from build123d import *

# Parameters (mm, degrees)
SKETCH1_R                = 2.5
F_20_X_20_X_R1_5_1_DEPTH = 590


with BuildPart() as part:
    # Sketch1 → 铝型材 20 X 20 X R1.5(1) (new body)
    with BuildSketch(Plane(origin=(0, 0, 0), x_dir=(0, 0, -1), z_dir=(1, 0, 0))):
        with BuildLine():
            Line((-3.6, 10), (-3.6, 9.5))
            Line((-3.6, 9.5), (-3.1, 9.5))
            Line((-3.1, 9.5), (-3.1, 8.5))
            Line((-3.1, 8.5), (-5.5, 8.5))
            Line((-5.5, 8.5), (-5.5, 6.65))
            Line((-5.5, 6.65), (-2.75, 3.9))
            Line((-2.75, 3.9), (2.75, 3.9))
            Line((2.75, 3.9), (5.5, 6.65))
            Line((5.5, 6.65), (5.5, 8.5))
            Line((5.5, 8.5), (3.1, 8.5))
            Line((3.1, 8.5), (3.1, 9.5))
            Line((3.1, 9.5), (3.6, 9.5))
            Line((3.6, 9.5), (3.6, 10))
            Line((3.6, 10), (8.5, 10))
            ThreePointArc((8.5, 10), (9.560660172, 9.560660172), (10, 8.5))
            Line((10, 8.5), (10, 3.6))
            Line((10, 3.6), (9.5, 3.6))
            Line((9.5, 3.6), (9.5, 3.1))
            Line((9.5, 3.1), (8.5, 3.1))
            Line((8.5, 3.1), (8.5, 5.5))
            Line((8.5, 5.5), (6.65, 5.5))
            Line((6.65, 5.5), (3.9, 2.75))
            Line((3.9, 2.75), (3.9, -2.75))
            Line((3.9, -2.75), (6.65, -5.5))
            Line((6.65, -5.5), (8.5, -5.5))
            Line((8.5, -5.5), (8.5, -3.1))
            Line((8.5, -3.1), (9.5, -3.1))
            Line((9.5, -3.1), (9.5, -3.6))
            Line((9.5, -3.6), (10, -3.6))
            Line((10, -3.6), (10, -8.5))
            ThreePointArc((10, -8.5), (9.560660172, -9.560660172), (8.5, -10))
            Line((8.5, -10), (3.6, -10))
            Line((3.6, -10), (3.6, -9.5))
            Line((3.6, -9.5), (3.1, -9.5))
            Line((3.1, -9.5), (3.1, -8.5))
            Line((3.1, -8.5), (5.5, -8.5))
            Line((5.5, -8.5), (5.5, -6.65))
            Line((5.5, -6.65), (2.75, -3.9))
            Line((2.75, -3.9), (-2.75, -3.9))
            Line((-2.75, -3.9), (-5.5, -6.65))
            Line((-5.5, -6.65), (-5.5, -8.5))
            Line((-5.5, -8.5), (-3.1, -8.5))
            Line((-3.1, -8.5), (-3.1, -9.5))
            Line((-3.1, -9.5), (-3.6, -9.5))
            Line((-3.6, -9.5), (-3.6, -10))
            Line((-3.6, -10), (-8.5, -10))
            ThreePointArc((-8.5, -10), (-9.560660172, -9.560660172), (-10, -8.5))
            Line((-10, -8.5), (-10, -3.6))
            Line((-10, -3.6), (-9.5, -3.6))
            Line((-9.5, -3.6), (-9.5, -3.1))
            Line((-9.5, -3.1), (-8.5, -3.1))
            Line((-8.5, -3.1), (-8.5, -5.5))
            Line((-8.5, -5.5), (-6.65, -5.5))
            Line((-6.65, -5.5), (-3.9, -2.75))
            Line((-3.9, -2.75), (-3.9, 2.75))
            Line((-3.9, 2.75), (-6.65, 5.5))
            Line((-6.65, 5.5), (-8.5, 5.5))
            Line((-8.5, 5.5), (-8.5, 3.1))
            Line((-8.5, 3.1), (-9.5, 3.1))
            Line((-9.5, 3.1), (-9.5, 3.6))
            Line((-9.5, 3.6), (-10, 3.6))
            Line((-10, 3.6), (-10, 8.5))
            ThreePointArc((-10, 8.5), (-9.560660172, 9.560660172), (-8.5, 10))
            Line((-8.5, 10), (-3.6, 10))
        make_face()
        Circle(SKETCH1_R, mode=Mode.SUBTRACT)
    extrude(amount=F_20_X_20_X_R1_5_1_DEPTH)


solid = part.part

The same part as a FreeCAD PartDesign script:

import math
import FreeCAD as App
import Part
import Sketcher

V = App.Vector
Q = App.Units.Quantity

doc = App.newDocument("Part")
params = doc.addObject("Spreadsheet::Sheet", "Params")
for row, (alias, value) in enumerate([
    ("sketch1_diameter", "5 mm"),
    ("sketch1_radius", "1.5 mm"),
    ("sketch1_width", "1 mm"),
    ("sketch1_width2", "4.9 mm"),
    ("sketch1_width3", "2.4 mm"),
    ("pad1_length", "590 mm"),
], start=1):
    params.set(f"A{row}", alias)
    params.set(f"B{row}", "=" + value)
    params.setAlias(f"B{row}", alias)

body = doc.addObject("PartDesign::Body", "Body")

# Sketch on YZ plane
sketch1 = body.newObject("Sketcher::SketchObject", "Sketch")
sketch1.AttachmentSupport = (doc.getObject("YZ_Plane"), [""])
sketch1.MapMode = "FlatFace"
sketch1.addGeometry(Part.LineSegment(V(9.5, 3.6, 0), V(10, 3.6, 0)), False)
sketch1.addGeometry(Part.LineSegment(V(10, 3.6, 0), V(10, 8.5, 0)), False)
sketch1.addGeometry(Part.ArcOfCircle(Part.Circle(V(8.5, 8.5, 0), V(0, 0, 1), 1.5), math.radians(0), math.radians(90)), False)
sketch1.addGeometry(Part.LineSegment(V(8.5, 10, 0), V(3.6, 10, 0)), False)
sketch1.addGeometry(Part.LineSegment(V(3.6, 10, 0), V(3.6, 9.5, 0)), False)
sketch1.addGeometry(Part.LineSegment(V(3.6, 9.5, 0), V(3.1, 9.5, 0)), False)
sketch1.addGeometry(Part.LineSegment(V(3.1, 9.5, 0), V(3.1, 8.5, 0)), False)
sketch1.addGeometry(Part.LineSegment(V(3.1, 8.5, 0), V(5.5, 8.5, 0)), False)
sketch1.addGeometry(Part.LineSegment(V(5.5, 8.5, 0), V(5.5, 6.7, 0)), False)
sketch1.addGeometry(Part.LineSegment(V(5.5, 6.7, 0), V(2.8, 3.9, 0)), False)
sketch1.addGeometry(Part.LineSegment(V(2.8, 3.9, 0), V(-2.8, 3.9, 0)), False)
sketch1.addGeometry(Part.LineSegment(V(-2.8, 3.9, 0), V(-5.5, 6.7, 0)), False)
sketch1.addGeometry(Part.LineSegment(V(-5.5, 6.7, 0), V(-5.5, 8.5, 0)), False)
sketch1.addGeometry(Part.LineSegment(V(-5.5, 8.5, 0), V(-3.1, 8.5, 0)), False)
sketch1.addGeometry(Part.LineSegment(V(-3.1, 8.5, 0), V(-3.1, 9.5, 0)), False)
sketch1.addGeometry(Part.LineSegment(V(-3.1, 9.5, 0), V(-3.6, 9.5, 0)), False)
sketch1.addGeometry(Part.LineSegment(V(-3.6, 9.5, 0), V(-3.6, 10, 0)), False)
sketch1.addGeometry(Part.LineSegment(V(-3.6, 10, 0), V(-8.5, 10, 0)), False)
sketch1.addGeometry(Part.ArcOfCircle(Part.Circle(V(-8.5, 8.5, 0), V(0, 0, 1), 1.5), math.radians(90), math.radians(180)), False)
sketch1.addGeometry(Part.LineSegment(V(-10, 8.5, 0), V(-10, 3.6, 0)), False)
sketch1.addGeometry(Part.LineSegment(V(-10, 3.6, 0), V(-9.5, 3.6, 0)), False)
sketch1.addGeometry(Part.LineSegment(V(-9.5, 3.6, 0), V(-9.5, 3.1, 0)), False)
sketch1.addGeometry(Part.LineSegment(V(-9.5, 3.1, 0), V(-8.5, 3.1, 0)), False)
sketch1.addGeometry(Part.LineSegment(V(-8.5, 3.1, 0), V(-8.5, 5.5, 0)), False)
sketch1.addGeometry(Part.LineSegment(V(-8.5, 5.5, 0), V(-6.7, 5.5, 0)), False)
sketch1.addGeometry(Part.LineSegment(V(-6.7, 5.5, 0), V(-3.9, 2.8, 0)), False)
sketch1.addGeometry(Part.LineSegment(V(-3.9, 2.8, 0), V(-3.9, -2.8, 0)), False)
sketch1.addGeometry(Part.LineSegment(V(-3.9, -2.8, 0), V(-6.7, -5.5, 0)), False)
sketch1.addGeometry(Part.LineSegment(V(-6.7, -5.5, 0), V(-8.5, -5.5, 0)), False)
sketch1.addGeometry(Part.LineSegment(V(-8.5, -5.5, 0), V(-8.5, -3.1, 0)), False)
sketch1.addGeometry(Part.LineSegment(V(-8.5, -3.1, 0), V(-9.5, -3.1, 0)), False)
sketch1.addGeometry(Part.LineSegment(V(-9.5, -3.1, 0), V(-9.5, -3.6, 0)), False)
sketch1.addGeometry(Part.LineSegment(V(-9.5, -3.6, 0), V(-10, -3.6, 0)), False)
sketch1.addGeometry(Part.LineSegment(V(-10, -3.6, 0), V(-10, -8.5, 0)), False)
sketch1.addGeometry(Part.ArcOfCircle(Part.Circle(V(-8.5, -8.5, 0), V(0, 0, 1), 1.5), math.radians(180), math.radians(270)), False)
sketch1.addGeometry(Part.LineSegment(V(-8.5, -10, 0), V(-3.6, -10, 0)), False)
sketch1.addGeometry(Part.LineSegment(V(-3.6, -10, 0), V(-3.6, -9.5, 0)), False)
sketch1.addGeometry(Part.LineSegment(V(-3.6, -9.5, 0), V(-3.1, -9.5, 0)), False)
sketch1.addGeometry(Part.LineSegment(V(-3.1, -9.5, 0), V(-3.1, -8.5, 0)), False)
sketch1.addGeometry(Part.LineSegment(V(-3.1, -8.5, 0), V(-5.5, -8.5, 0)), False)
sketch1.addGeometry(Part.LineSegment(V(-5.5, -8.5, 0), V(-5.5, -6.7, 0)), False)
sketch1.addGeometry(Part.LineSegment(V(-5.5, -6.7, 0), V(-2.8, -3.9, 0)), False)
sketch1.addGeometry(Part.LineSegment(V(-2.8, -3.9, 0), V(2.8, -3.9, 0)), False)
sketch1.addGeometry(Part.LineSegment(V(2.8, -3.9, 0), V(5.5, -6.7, 0)), False)
sketch1.addGeometry(Part.LineSegment(V(5.5, -6.7, 0), V(5.5, -8.5, 0)), False)
sketch1.addGeometry(Part.LineSegment(V(5.5, -8.5, 0), V(3.1, -8.5, 0)), False)
sketch1.addGeometry(Part.LineSegment(V(3.1, -8.5, 0), V(3.1, -9.5, 0)), False)
sketch1.addGeometry(Part.LineSegment(V(3.1, -9.5, 0), V(3.6, -9.5, 0)), False)
sketch1.addGeometry(Part.LineSegment(V(3.6, -9.5, 0), V(3.6, -10, 0)), False)
sketch1.addGeometry(Part.LineSegment(V(3.6, -10, 0), V(8.5, -10, 0)), False)
sketch1.addGeometry(Part.ArcOfCircle(Part.Circle(V(8.5, -8.5, 0), V(0, 0, 1), 1.5), math.radians(-90), math.radians(0)), False)
sketch1.addGeometry(Part.LineSegment(V(10, -8.5, 0), V(10, -3.6, 0)), False)
sketch1.addGeometry(Part.LineSegment(V(10, -3.6, 0), V(9.5, -3.6, 0)), False)
sketch1.addGeometry(Part.LineSegment(V(9.5, -3.6, 0), V(9.5, -3.1, 0)), False)
sketch1.addGeometry(Part.LineSegment(V(9.5, -3.1, 0), V(8.5, -3.1, 0)), False)
sketch1.addGeometry(Part.LineSegment(V(8.5, -3.1, 0), V(8.5, -5.5, 0)), False)
sketch1.addGeometry(Part.LineSegment(V(8.5, -5.5, 0), V(6.7, -5.5, 0)), False)
sketch1.addGeometry(Part.LineSegment(V(6.7, -5.5, 0), V(3.9, -2.8, 0)), False)
sketch1.addGeometry(Part.LineSegment(V(3.9, -2.8, 0), V(3.9, 2.8, 0)), False)
sketch1.addGeometry(Part.LineSegment(V(3.9, 2.8, 0), V(6.7, 5.5, 0)), False)
sketch1.addGeometry(Part.LineSegment(V(6.7, 5.5, 0), V(8.5, 5.5, 0)), False)
sketch1.addGeometry(Part.LineSegment(V(8.5, 5.5, 0), V(8.5, 3.1, 0)), False)
sketch1.addGeometry(Part.LineSegment(V(8.5, 3.1, 0), V(9.5, 3.1, 0)), False)
sketch1.addGeometry(Part.LineSegment(V(9.5, 3.1, 0), V(9.5, 3.6, 0)), False)
sketch1.addGeometry(Part.Circle(V(0, 0, 0), V(0, 0, 1), 2.5), False)
sketch1.addConstraint(Sketcher.Constraint("Coincident", 0, 2, 1, 1))
sketch1.addConstraint(Sketcher.Constraint("Tangent", 1, 2, 2, 1))
sketch1.addConstraint(Sketcher.Constraint("Tangent", 2, 2, 3, 1))
sketch1.addConstraint(Sketcher.Constraint("Coincident", 3, 2, 4, 1))
sketch1.addConstraint(Sketcher.Constraint("Coincident", 4, 2, 5, 1))
sketch1.addConstraint(Sketcher.Constraint("Coincident", 5, 2, 6, 1))
sketch1.addConstraint(Sketcher.Constraint("Coincident", 6, 2, 7, 1))
sketch1.addConstraint(Sketcher.Constraint("Coincident", 7, 2, 8, 1))
sketch1.addConstraint(Sketcher.Constraint("Coincident", 8, 2, 9, 1))
sketch1.addConstraint(Sketcher.Constraint("Coincident", 9, 2, 10, 1))
sketch1.addConstraint(Sketcher.Constraint("Coincident", 10, 2, 11, 1))
sketch1.addConstraint(Sketcher.Constraint("Coincident", 11, 2, 12, 1))
sketch1.addConstraint(Sketcher.Constraint("Coincident", 12, 2, 13, 1))
sketch1.addConstraint(Sketcher.Constraint("Coincident", 13, 2, 14, 1))
sketch1.addConstraint(Sketcher.Constraint("Coincident", 14, 2, 15, 1))
sketch1.addConstraint(Sketcher.Constraint("Coincident", 15, 2, 16, 1))
sketch1.addConstraint(Sketcher.Constraint("Coincident", 16, 2, 17, 1))
sketch1.addConstraint(Sketcher.Constraint("Tangent", 17, 2, 18, 1))
sketch1.addConstraint(Sketcher.Constraint("Tangent", 18, 2, 19, 1))
sketch1.addConstraint(Sketcher.Constraint("Coincident", 19, 2, 20, 1))
sketch1.addConstraint(Sketcher.Constraint("Coincident", 20, 2, 21, 1))
sketch1.addConstraint(Sketcher.Constraint("Coincident", 21, 2, 22, 1))
sketch1.addConstraint(Sketcher.Constraint("Coincident", 22, 2, 23, 1))
sketch1.addConstraint(Sketcher.Constraint("Coincident", 23, 2, 24, 1))
sketch1.addConstraint(Sketcher.Constraint("Coincident", 24, 2, 25, 1))
sketch1.addConstraint(Sketcher.Constraint("Coincident", 25, 2, 26, 1))
sketch1.addConstraint(Sketcher.Constraint("Coincident", 26, 2, 27, 1))
sketch1.addConstraint(Sketcher.Constraint("Coincident", 27, 2, 28, 1))
sketch1.addConstraint(Sketcher.Constraint("Coincident", 28, 2, 29, 1))
sketch1.addConstraint(Sketcher.Constraint("Coincident", 29, 2, 30, 1))
sketch1.addConstraint(Sketcher.Constraint("Coincident", 30, 2, 31, 1))
sketch1.addConstraint(Sketcher.Constraint("Coincident", 31, 2, 32, 1))
sketch1.addConstraint(Sketcher.Constraint("Coincident", 32, 2, 33, 1))
sketch1.addConstraint(Sketcher.Constraint("Tangent", 33, 2, 34, 1))
sketch1.addConstraint(Sketcher.Constraint("Tangent", 34, 2, 35, 1))
sketch1.addConstraint(Sketcher.Constraint("Coincident", 35, 2, 36, 1))
sketch1.addConstraint(Sketcher.Constraint("Coincident", 36, 2, 37, 1))
sketch1.addConstraint(Sketcher.Constraint("Coincident", 37, 2, 38, 1))
sketch1.addConstraint(Sketcher.Constraint("Coincident", 38, 2, 39, 1))
sketch1.addConstraint(Sketcher.Constraint("Coincident", 39, 2, 40, 1))
sketch1.addConstraint(Sketcher.Constraint("Coincident", 40, 2, 41, 1))
sketch1.addConstraint(Sketcher.Constraint("Coincident", 41, 2, 42, 1))
sketch1.addConstraint(Sketcher.Constraint("Coincident", 42, 2, 43, 1))
sketch1.addConstraint(Sketcher.Constraint("Coincident", 43, 2, 44, 1))
sketch1.addConstraint(Sketcher.Constraint("Coincident", 44, 2, 45, 1))
sketch1.addConstraint(Sketcher.Constraint("Coincident", 45, 2, 46, 1))
sketch1.addConstraint(Sketcher.Constraint("Coincident", 46, 2, 47, 1))
sketch1.addConstraint(Sketcher.Constraint("Coincident", 47, 2, 48, 1))
sketch1.addConstraint(Sketcher.Constraint("Coincident", 48, 2, 49, 1))
sketch1.addConstraint(Sketcher.Constraint("Tangent", 49, 2, 50, 1))
sketch1.addConstraint(Sketcher.Constraint("Tangent", 50, 2, 51, 1))
sketch1.addConstraint(Sketcher.Constraint("Coincident", 51, 2, 52, 1))
sketch1.addConstraint(Sketcher.Constraint("Coincident", 52, 2, 53, 1))
sketch1.addConstraint(Sketcher.Constraint("Coincident", 53, 2, 54, 1))
sketch1.addConstraint(Sketcher.Constraint("Coincident", 54, 2, 55, 1))
sketch1.addConstraint(Sketcher.Constraint("Coincident", 55, 2, 56, 1))
sketch1.addConstraint(Sketcher.Constraint("Coincident", 56, 2, 57, 1))
sketch1.addConstraint(Sketcher.Constraint("Coincident", 57, 2, 58, 1))
sketch1.addConstraint(Sketcher.Constraint("Coincident", 58, 2, 59, 1))
sketch1.addConstraint(Sketcher.Constraint("Coincident", 59, 2, 60, 1))
sketch1.addConstraint(Sketcher.Constraint("Coincident", 60, 2, 61, 1))
sketch1.addConstraint(Sketcher.Constraint("Coincident", 61, 2, 62, 1))
sketch1.addConstraint(Sketcher.Constraint("Coincident", 62, 2, 63, 1))
sketch1.addConstraint(Sketcher.Constraint("Coincident", 63, 2, 0, 1))
sketch1.addConstraint(Sketcher.Constraint("Horizontal", 0))
sketch1.addConstraint(Sketcher.Constraint("Vertical", 1))
sketch1.addConstraint(Sketcher.Constraint("Horizontal", 3))
sketch1.addConstraint(Sketcher.Constraint("Vertical", 4))
sketch1.addConstraint(Sketcher.Constraint("Horizontal", 5))
sketch1.addConstraint(Sketcher.Constraint("Vertical", 6))
sketch1.addConstraint(Sketcher.Constraint("Horizontal", 7))
sketch1.addConstraint(Sketcher.Constraint("Vertical", 8))
sketch1.addConstraint(Sketcher.Constraint("Horizontal", 10))
sketch1.addConstraint(Sketcher.Constraint("Vertical", 12))
sketch1.addConstraint(Sketcher.Constraint("Horizontal", 13))
sketch1.addConstraint(Sketcher.Constraint("Vertical", 14))
sketch1.addConstraint(Sketcher.Constraint("Horizontal", 15))
sketch1.addConstraint(Sketcher.Constraint("Vertical", 16))
sketch1.addConstraint(Sketcher.Constraint("Horizontal", 17))
sketch1.addConstraint(Sketcher.Constraint("Vertical", 19))
sketch1.addConstraint(Sketcher.Constraint("Horizontal", 20))
sketch1.addConstraint(Sketcher.Constraint("Vertical", 21))
sketch1.addConstraint(Sketcher.Constraint("Horizontal", 22))
sketch1.addConstraint(Sketcher.Constraint("Vertical", 23))
sketch1.addConstraint(Sketcher.Constraint("Horizontal", 24))
sketch1.addConstraint(Sketcher.Constraint("Vertical", 26))
sketch1.addConstraint(Sketcher.Constraint("Horizontal", 28))
sketch1.addConstraint(Sketcher.Constraint("Vertical", 29))
sketch1.addConstraint(Sketcher.Constraint("Horizontal", 30))
sketch1.addConstraint(Sketcher.Constraint("Vertical", 31))
sketch1.addConstraint(Sketcher.Constraint("Horizontal", 32))
sketch1.addConstraint(Sketcher.Constraint("Vertical", 33))
sketch1.addConstraint(Sketcher.Constraint("Horizontal", 35))
sketch1.addConstraint(Sketcher.Constraint("Vertical", 36))
sketch1.addConstraint(Sketcher.Constraint("Horizontal", 37))
sketch1.addConstraint(Sketcher.Constraint("Vertical", 38))
sketch1.addConstraint(Sketcher.Constraint("Horizontal", 39))
sketch1.addConstraint(Sketcher.Constraint("Vertical", 40))
sketch1.addConstraint(Sketcher.Constraint("Horizontal", 42))
sketch1.addConstraint(Sketcher.Constraint("Vertical", 44))
sketch1.addConstraint(Sketcher.Constraint("Horizontal", 45))
sketch1.addConstraint(Sketcher.Constraint("Vertical", 46))
sketch1.addConstraint(Sketcher.Constraint("Horizontal", 47))
sketch1.addConstraint(Sketcher.Constraint("Vertical", 48))
sketch1.addConstraint(Sketcher.Constraint("Horizontal", 49))
sketch1.addConstraint(Sketcher.Constraint("Vertical", 51))
sketch1.addConstraint(Sketcher.Constraint("Horizontal", 52))
sketch1.addConstraint(Sketcher.Constraint("Vertical", 53))
sketch1.addConstraint(Sketcher.Constraint("Horizontal", 54))
sketch1.addConstraint(Sketcher.Constraint("Vertical", 55))
sketch1.addConstraint(Sketcher.Constraint("Horizontal", 56))
sketch1.addConstraint(Sketcher.Constraint("Vertical", 58))
sketch1.addConstraint(Sketcher.Constraint("Horizontal", 60))
sketch1.addConstraint(Sketcher.Constraint("Vertical", 61))
sketch1.addConstraint(Sketcher.Constraint("Horizontal", 62))
sketch1.addConstraint(Sketcher.Constraint("Vertical", 63))
sketch1.addConstraint(Sketcher.Constraint("Coincident", 64, 3, -1, 1))
sketch1.addConstraint(Sketcher.Constraint("Equal", 2, 18))
sketch1.addConstraint(Sketcher.Constraint("Equal", 18, 34))
sketch1.addConstraint(Sketcher.Constraint("Equal", 34, 50))
sketch1.addConstraint(Sketcher.Constraint("Symmetric", 2, 3, 34, 3, -1, 1))
sketch1.addConstraint(Sketcher.Constraint("Symmetric", 18, 3, 50, 3, -1, 1))
sketch1.addConstraint(Sketcher.Constraint("Symmetric", 4, 2, 36, 2, -1, 1))
sketch1.addConstraint(Sketcher.Constraint("Symmetric", 6, 2, 38, 2, -1, 1))
sketch1.addConstraint(Sketcher.Constraint("Symmetric", 8, 2, 40, 2, -1, 1))
sketch1.addConstraint(Sketcher.Constraint("Symmetric", 9, 2, 41, 2, -1, 1))
sketch1.addConstraint(Sketcher.Constraint("Symmetric", 11, 2, 43, 2, -1, 1))
sketch1.addConstraint(Sketcher.Constraint("Symmetric", 13, 2, 45, 2, -1, 1))
sketch1.addConstraint(Sketcher.Constraint("Symmetric", 15, 2, 47, 2, -1, 1))
sketch1.addConstraint(Sketcher.Constraint("Symmetric", 20, 2, 52, 2, -1, 1))
sketch1.addConstraint(Sketcher.Constraint("Symmetric", 22, 2, 54, 2, -1, 1))
sketch1.addConstraint(Sketcher.Constraint("Symmetric", 24, 2, 56, 2, -1, 1))
sketch1.addConstraint(Sketcher.Constraint("Symmetric", 25, 2, 57, 2, -1, 1))
sketch1.addConstraint(Sketcher.Constraint("Symmetric", 27, 2, 59, 2, -1, 1))
sketch1.addConstraint(Sketcher.Constraint("Symmetric", 29, 2, 61, 2, -1, 1))
sketch1.addConstraint(Sketcher.Constraint("Symmetric", 31, 2, 63, 2, -1, 1))
sketch1.addConstraint(Sketcher.Constraint("Symmetric", 2, 3, 18, 3, -2))
sketch1.addConstraint(Sketcher.Constraint("Symmetric", 8, 2, 11, 2, -2))
sketch1.addConstraint(Sketcher.Constraint("Symmetric", 6, 2, 13, 2, -2))
sketch1.addConstraint(Sketcher.Constraint("Symmetric", 4, 2, 15, 2, -2))
sketch1.addConstraint(Sketcher.Constraint("Symmetric", 31, 2, 52, 2, -2))
sketch1.addConstraint(Sketcher.Constraint("Symmetric", 29, 2, 54, 2, -2))
sketch1.addConstraint(Sketcher.Constraint("Symmetric", 27, 2, 56, 2, -2))
sketch1.addConstraint(Sketcher.Constraint("Perpendicular", 9, 11))
sketch1.addConstraint(Sketcher.Constraint("Parallel", 11, 25))
sketch1.addConstraint(Sketcher.Constraint("Perpendicular", 25, 27))
sketch1.addConstraint(Sketcher.Constraint("Perpendicular", 41, 43))
sketch1.addConstraint(Sketcher.Constraint("Perpendicular", 57, 59))
sketch1.addConstraint(Sketcher.Constraint("Horizontal", 1, 2, 6, 2))
sketch1.addConstraint(Sketcher.Constraint("Horizontal", 26, 2, 57, 2))
sketch1.addConstraint(Sketcher.Constraint("Vertical", 17, 2, 22, 2))
sketch1.addConstraint(Sketcher.Constraint("Equal", 0, 5))
sketch1.addConstraint(Sketcher.Constraint("Equal", 49, 1))
sketch1.addConstraint(Sketcher.Constraint("Equal", 52, 4))
sketch1.addConstraint(Sketcher.Constraint("Equal", 60, 8))
sketch1.addConstraint(Sketcher.Constraint("Equal", 16, 21))
sketch1.addConstraint(Sketcher.Constraint("Equal", 45, 23))
sketch1.addConstraint(Sketcher.Constraint("Equal", 42, 26))
sketch1.addConstraint(Sketcher.Constraint("Equal", 11, 25))
sketch1.addConstraint(Sketcher.Constraint("Diameter", 64, Q("5 mm")))
sketch1.addConstraint(Sketcher.Constraint("Radius", 2, Q("1.5 mm")))
sketch1.addConstraint(Sketcher.Constraint("DistanceX", 22, 1, 22, 2, Q("1 mm")))
sketch1.addConstraint(Sketcher.Constraint("DistanceX", 3, 2, 3, 1, Q("4.9 mm")))
sketch1.addConstraint(Sketcher.Constraint("DistanceX", 7, 1, 7, 2, Q("2.4 mm")))
sketch1.addConstraint(Sketcher.Constraint("DistanceX", 10, 2, 10, 1, Q("5.5 mm")))
sketch1.addConstraint(Sketcher.Constraint("DistanceX", -1, 1, 0, 2, Q("10 mm")))
sketch1.addConstraint(Sketcher.Constraint("DistanceX", 24, 1, 24, 2, Q("1.85 mm")))
sketch1.setExpression("Constraints[159]", "Params.sketch1_diameter")
sketch1.setExpression("Constraints[160]", "Params.sketch1_radius")
sketch1.setExpression("Constraints[161]", "Params.sketch1_width")
sketch1.setExpression("Constraints[162]", "Params.sketch1_width2")
sketch1.setExpression("Constraints[163]", "Params.sketch1_width3")
pad1 = body.newObject("PartDesign::Pad", "Pad")
pad1.Profile = sketch1
pad1.setExpression("Length", "Params.pad1_length")

doc.recompute()
